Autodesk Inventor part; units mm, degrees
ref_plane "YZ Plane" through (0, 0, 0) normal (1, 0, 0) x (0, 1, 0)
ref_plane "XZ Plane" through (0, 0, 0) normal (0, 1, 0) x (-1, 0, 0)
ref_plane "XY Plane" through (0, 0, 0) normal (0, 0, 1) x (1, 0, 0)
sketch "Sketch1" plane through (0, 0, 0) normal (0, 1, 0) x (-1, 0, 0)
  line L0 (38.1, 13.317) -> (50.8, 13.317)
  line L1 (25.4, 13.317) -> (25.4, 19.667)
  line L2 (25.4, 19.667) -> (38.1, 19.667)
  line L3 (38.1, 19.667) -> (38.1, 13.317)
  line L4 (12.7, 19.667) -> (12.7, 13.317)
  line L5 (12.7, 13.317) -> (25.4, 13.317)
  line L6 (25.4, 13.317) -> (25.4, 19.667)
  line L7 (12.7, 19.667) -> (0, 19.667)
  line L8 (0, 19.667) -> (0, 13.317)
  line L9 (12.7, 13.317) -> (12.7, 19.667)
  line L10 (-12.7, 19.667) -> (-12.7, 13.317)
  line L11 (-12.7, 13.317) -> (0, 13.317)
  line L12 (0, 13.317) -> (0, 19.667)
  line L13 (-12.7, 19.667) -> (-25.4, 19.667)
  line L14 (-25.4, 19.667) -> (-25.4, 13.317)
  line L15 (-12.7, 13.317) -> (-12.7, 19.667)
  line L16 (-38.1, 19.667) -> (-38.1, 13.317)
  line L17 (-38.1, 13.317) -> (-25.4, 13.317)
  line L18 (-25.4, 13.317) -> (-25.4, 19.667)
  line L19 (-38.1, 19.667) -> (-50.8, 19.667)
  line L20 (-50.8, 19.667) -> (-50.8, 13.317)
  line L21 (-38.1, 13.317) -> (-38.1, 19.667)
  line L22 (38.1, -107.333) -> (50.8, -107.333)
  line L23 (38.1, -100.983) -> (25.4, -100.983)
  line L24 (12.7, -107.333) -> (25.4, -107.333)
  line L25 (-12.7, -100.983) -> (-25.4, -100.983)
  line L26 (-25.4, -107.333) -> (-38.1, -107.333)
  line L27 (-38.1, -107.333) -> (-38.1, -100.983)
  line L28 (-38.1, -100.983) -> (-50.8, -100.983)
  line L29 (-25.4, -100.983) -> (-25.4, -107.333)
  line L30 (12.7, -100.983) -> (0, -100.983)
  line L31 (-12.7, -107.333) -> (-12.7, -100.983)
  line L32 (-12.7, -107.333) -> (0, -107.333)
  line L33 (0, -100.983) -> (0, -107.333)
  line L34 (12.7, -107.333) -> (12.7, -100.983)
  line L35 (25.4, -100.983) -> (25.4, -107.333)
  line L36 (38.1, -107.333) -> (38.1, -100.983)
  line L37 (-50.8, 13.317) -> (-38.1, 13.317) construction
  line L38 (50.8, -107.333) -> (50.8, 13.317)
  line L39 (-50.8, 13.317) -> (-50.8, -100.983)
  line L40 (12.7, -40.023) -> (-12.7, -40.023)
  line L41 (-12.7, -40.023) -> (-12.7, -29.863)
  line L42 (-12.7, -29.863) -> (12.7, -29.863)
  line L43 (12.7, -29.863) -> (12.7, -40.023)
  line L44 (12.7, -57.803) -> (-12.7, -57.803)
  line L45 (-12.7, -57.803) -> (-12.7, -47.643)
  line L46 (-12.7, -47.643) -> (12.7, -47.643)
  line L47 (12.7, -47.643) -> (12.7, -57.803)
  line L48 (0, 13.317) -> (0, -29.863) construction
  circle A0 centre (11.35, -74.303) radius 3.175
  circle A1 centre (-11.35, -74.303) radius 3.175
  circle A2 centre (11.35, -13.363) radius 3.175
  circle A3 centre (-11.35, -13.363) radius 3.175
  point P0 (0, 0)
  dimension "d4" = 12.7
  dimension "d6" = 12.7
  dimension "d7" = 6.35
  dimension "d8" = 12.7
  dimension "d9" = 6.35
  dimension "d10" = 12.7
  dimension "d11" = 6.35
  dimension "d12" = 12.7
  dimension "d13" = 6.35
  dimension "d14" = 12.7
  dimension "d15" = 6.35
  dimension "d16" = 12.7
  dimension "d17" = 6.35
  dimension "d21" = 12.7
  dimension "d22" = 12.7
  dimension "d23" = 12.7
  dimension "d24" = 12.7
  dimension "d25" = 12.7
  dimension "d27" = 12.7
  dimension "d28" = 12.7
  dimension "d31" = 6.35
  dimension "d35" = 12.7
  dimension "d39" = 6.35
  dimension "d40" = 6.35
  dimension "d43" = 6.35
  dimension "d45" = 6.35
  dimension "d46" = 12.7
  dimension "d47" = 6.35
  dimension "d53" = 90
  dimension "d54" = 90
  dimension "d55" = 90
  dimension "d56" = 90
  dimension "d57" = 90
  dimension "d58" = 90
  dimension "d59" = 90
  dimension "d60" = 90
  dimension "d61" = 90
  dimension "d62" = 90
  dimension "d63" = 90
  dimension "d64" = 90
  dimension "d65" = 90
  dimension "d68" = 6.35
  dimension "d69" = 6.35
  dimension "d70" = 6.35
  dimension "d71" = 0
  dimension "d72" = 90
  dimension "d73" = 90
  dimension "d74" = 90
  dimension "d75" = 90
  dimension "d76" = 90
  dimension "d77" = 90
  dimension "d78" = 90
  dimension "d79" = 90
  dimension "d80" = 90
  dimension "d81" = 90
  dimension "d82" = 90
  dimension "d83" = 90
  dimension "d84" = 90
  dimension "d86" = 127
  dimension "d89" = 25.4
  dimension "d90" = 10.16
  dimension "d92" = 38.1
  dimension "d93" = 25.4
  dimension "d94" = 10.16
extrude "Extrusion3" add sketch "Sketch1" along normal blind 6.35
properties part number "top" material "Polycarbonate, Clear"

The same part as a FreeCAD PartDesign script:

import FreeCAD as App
import Part
import Sketcher
Q = App.Units.Quantity


def add_polygon(sketch, points):
    """Adds a closed chain of lines whose ends are joined by coincident constraints."""
    first, n = sketch.GeometryCount, len(points)
    for a, b in zip(points, points[1:] + points[:1]):
        sketch.addGeometry(Part.LineSegment(App.Vector(*a, 0), App.Vector(*b, 0)), False)
    for i in range(n):
        sketch.addConstraint(Sketcher.Constraint("Coincident", first + i, 2, first + (i + 1) % n, 1))

doc = App.newDocument("Part")
body = doc.addObject("PartDesign::Body", "Body")

# Sketch on XZ plane
sketch1 = doc.addObject("Sketcher::SketchObject", "Sketch")
body.addObject(sketch1)
sketch1.AttachmentSupport = (doc.XZ_Plane, [""])
sketch1.MapMode = "FlatFace"
add_polygon(sketch1, [(-50.8, 13.3), (-38.1, 13.3), (-38.1, 19.7), (-25.4, 19.7), (-25.4, 13.3), (-12.7, 13.3), (-12.7, 19.7), (0, 19.7), (0, 13.3), (12.7, 13.3), (12.7, 19.7), (25.4, 19.7), (25.4, 13.3), (38.1, 13.3), (38.1, 19.7), (50.8, 19.7), (50.8, -101), (38.1, -101), (38.1, -107.3), (25.4, -107.3), (25.4, -101), (12.7, -101), (12.7, -107.3), (0, -107.3), (0, -101), (-12.7, -101), (-12.7, -107.3), (-25.4, -107.3), (-25.4, -101), (-38.1, -101), (-38.1, -107.3), (-50.8, -107.3)])  # lines 0-31
sketch1.addGeometry(Part.Circle(App.Vector(11.3, -74.3, 0), App.Vector(0, 0, 1), 3.2), False)  # 32
add_polygon(sketch1, [(-12.7, -47.6), (-12.7, -57.8), (12.7, -57.8), (12.7, -47.6)])  # lines 33-36
sketch1.addGeometry(Part.Circle(App.Vector(-11.3, -74.3, 0), App.Vector(0, 0, 1), 3.2), False)  # 37
add_polygon(sketch1, [(-12.7, -29.9), (-12.7, -40), (12.7, -40), (12.7, -29.9)])  # lines 38-41
sketch1.addGeometry(Part.Circle(App.Vector(11.3, -13.4, 0), App.Vector(0, 0, 1), 3.2), False)  # 42
sketch1.addGeometry(Part.Circle(App.Vector(-11.3, -13.4, 0), App.Vector(0, 0, 1), 3.2), False)  # 43
sketch1.addConstraint([
    Sketcher.Constraint("Horizontal", 0),
    Sketcher.Constraint("Vertical", 1),
    Sketcher.Constraint("Horizontal", 2),
    Sketcher.Constraint("Vertical", 3),
    Sketcher.Constraint("Horizontal", 4),
    Sketcher.Constraint("Vertical", 5),
    Sketcher.Constraint("Horizontal", 6),
    Sketcher.Constraint("Vertical", 7),
    Sketcher.Constraint("Horizontal", 8),
    Sketcher.Constraint("Vertical", 9),
    Sketcher.Constraint("Horizontal", 10),
    Sketcher.Constraint("Vertical", 11),
    Sketcher.Constraint("Horizontal", 12),
    Sketcher.Constraint("Vertical", 13),
    Sketcher.Constraint("Horizontal", 14),
    Sketcher.Constraint("Vertical", 15),
    Sketcher.Constraint("Horizontal", 16),
    Sketcher.Constraint("Vertical", 17),
    Sketcher.Constraint("Horizontal", 18),
    Sketcher.Constraint("Vertical", 19),
    Sketcher.Constraint("Horizontal", 20),
    Sketcher.Constraint("Vertical", 21),
    Sketcher.Constraint("Horizontal", 22),
    Sketcher.Constraint("Vertical", 23),
    Sketcher.Constraint("Horizontal", 24),
    Sketcher.Constraint("Vertical", 25),
    Sketcher.Constraint("Horizontal", 26),
    Sketcher.Constraint("Vertical", 27),
    Sketcher.Constraint("Horizontal", 28),
    Sketcher.Constraint("Vertical", 29),
    Sketcher.Constraint("Horizontal", 30),
    Sketcher.Constraint("Vertical", 31),
    Sketcher.Constraint("Vertical", 33),
    Sketcher.Constraint("Horizontal", 34),
    Sketcher.Constraint("Vertical", 35),
    Sketcher.Constraint("Horizontal", 36),
    Sketcher.Constraint("Vertical", 38),
    Sketcher.Constraint("Horizontal", 39),
    Sketcher.Constraint("Vertical", 40),
    Sketcher.Constraint("Horizontal", 41),
    Sketcher.Constraint("Equal", 32, 37),
    Sketcher.Constraint("Equal", 37, 42),
    Sketcher.Constraint("Equal", 42, 43),
    Sketcher.Constraint("Symmetric", 32, 3, 37, 3, -2),
    Sketcher.Constraint("Symmetric", 42, 3, 43, 3, -2),
    Sketcher.Constraint("Symmetric", 4, 2, 8, 2, -2),
    Sketcher.Constraint("Symmetric", 2, 2, 10, 2, -2),
    Sketcher.Constraint("Symmetric", 0, 2, 12, 2, -2),
    Sketcher.Constraint("Symmetric", 20, 2, 24, 2, -2),
    Sketcher.Constraint("Symmetric", 18, 2, 26, 2, -2),
    Sketcher.Constraint("Symmetric", 16, 2, 28, 2, -2),
    Sketcher.Constraint("PointOnObject", 6, 2, -2),
    Sketcher.Constraint("PointOnObject", 22, 2, -2),
    Sketcher.Constraint("Horizontal", 0, 2, 3, 2),
    Sketcher.Constraint("Horizontal", 2, 2, 5, 2),
    Sketcher.Constraint("Horizontal", 10, 2, 13, 2),
    Sketcher.Constraint("Horizontal", 16, 2, 19, 2),
    Sketcher.Constraint("Horizontal", 18, 2, 21, 2),
    Sketcher.Constraint("Horizontal", 26, 2, 29, 2),
    Sketcher.Constraint("Vertical", 32, 3, 42, 3),
    Sketcher.Constraint("Vertical", 13, 2, 16, 2),
    Sketcher.Constraint("Vertical", 11, 2, 18, 2),
    Sketcher.Constraint("Vertical", 9, 2, 20, 2),
    Sketcher.Constraint("Vertical", 25, 2, 33, 2),
    Sketcher.Constraint("Vertical", 21, 2, 34, 2),
    Sketcher.Constraint("Vertical", 36, 2, 38, 2),
    Sketcher.Constraint("Vertical", 35, 2, 39, 2),
    Sketcher.Constraint("Equal", 0, 2),
    Sketcher.Constraint("Equal", 2, 4),
    Sketcher.Constraint("Equal", 4, 6),
    Sketcher.Constraint("Equal", 12, 14),
    Sketcher.Constraint("Equal", 13, 17),
    Sketcher.Constraint("Equal", 35, 38),
    Sketcher.Constraint("Diameter", 32, Q("0.25 in")),
    Sketcher.Constraint("DistanceX", 34, 1, 34, 2, Q("1 in")),
    Sketcher.Constraint("DistanceY", 33, 2, 33, 1, Q("0.4 in")),
    Sketcher.Constraint("DistanceY", 1, 1, 1, 2, Q("0.25 in")),
    Sketcher.Constraint("DistanceY", 15, 2, 15, 1, Q("4.75 in")),
    Sketcher.Constraint("DistanceY", 24, 2, 33, 2, Q("1.7 in")),
    Sketcher.Constraint("DistanceY", 36, 2, 38, 2, Q("0.3 in")),
    Sketcher.Constraint("DistanceY", 42, 3, -1, 1, Q("0.5261 in")),
    Sketcher.Constraint("DistanceY", -1, 1, 0, 2, Q("0.5243 in")),
    Sketcher.Constraint("DistanceX", 37, 3, 32, 3, Q("0.8937 in")),
    Sketcher.Constraint("DistanceY", 37, 3, 0, 2, Q("3.4496 in")),
])
pad1 = doc.addObject("PartDesign::Pad", "Pad")
body.addObject(pad1)
pad1.Profile = sketch1
pad1.Length = Q("0.25 in")
pad1.Reversed = True

doc.recompute()
